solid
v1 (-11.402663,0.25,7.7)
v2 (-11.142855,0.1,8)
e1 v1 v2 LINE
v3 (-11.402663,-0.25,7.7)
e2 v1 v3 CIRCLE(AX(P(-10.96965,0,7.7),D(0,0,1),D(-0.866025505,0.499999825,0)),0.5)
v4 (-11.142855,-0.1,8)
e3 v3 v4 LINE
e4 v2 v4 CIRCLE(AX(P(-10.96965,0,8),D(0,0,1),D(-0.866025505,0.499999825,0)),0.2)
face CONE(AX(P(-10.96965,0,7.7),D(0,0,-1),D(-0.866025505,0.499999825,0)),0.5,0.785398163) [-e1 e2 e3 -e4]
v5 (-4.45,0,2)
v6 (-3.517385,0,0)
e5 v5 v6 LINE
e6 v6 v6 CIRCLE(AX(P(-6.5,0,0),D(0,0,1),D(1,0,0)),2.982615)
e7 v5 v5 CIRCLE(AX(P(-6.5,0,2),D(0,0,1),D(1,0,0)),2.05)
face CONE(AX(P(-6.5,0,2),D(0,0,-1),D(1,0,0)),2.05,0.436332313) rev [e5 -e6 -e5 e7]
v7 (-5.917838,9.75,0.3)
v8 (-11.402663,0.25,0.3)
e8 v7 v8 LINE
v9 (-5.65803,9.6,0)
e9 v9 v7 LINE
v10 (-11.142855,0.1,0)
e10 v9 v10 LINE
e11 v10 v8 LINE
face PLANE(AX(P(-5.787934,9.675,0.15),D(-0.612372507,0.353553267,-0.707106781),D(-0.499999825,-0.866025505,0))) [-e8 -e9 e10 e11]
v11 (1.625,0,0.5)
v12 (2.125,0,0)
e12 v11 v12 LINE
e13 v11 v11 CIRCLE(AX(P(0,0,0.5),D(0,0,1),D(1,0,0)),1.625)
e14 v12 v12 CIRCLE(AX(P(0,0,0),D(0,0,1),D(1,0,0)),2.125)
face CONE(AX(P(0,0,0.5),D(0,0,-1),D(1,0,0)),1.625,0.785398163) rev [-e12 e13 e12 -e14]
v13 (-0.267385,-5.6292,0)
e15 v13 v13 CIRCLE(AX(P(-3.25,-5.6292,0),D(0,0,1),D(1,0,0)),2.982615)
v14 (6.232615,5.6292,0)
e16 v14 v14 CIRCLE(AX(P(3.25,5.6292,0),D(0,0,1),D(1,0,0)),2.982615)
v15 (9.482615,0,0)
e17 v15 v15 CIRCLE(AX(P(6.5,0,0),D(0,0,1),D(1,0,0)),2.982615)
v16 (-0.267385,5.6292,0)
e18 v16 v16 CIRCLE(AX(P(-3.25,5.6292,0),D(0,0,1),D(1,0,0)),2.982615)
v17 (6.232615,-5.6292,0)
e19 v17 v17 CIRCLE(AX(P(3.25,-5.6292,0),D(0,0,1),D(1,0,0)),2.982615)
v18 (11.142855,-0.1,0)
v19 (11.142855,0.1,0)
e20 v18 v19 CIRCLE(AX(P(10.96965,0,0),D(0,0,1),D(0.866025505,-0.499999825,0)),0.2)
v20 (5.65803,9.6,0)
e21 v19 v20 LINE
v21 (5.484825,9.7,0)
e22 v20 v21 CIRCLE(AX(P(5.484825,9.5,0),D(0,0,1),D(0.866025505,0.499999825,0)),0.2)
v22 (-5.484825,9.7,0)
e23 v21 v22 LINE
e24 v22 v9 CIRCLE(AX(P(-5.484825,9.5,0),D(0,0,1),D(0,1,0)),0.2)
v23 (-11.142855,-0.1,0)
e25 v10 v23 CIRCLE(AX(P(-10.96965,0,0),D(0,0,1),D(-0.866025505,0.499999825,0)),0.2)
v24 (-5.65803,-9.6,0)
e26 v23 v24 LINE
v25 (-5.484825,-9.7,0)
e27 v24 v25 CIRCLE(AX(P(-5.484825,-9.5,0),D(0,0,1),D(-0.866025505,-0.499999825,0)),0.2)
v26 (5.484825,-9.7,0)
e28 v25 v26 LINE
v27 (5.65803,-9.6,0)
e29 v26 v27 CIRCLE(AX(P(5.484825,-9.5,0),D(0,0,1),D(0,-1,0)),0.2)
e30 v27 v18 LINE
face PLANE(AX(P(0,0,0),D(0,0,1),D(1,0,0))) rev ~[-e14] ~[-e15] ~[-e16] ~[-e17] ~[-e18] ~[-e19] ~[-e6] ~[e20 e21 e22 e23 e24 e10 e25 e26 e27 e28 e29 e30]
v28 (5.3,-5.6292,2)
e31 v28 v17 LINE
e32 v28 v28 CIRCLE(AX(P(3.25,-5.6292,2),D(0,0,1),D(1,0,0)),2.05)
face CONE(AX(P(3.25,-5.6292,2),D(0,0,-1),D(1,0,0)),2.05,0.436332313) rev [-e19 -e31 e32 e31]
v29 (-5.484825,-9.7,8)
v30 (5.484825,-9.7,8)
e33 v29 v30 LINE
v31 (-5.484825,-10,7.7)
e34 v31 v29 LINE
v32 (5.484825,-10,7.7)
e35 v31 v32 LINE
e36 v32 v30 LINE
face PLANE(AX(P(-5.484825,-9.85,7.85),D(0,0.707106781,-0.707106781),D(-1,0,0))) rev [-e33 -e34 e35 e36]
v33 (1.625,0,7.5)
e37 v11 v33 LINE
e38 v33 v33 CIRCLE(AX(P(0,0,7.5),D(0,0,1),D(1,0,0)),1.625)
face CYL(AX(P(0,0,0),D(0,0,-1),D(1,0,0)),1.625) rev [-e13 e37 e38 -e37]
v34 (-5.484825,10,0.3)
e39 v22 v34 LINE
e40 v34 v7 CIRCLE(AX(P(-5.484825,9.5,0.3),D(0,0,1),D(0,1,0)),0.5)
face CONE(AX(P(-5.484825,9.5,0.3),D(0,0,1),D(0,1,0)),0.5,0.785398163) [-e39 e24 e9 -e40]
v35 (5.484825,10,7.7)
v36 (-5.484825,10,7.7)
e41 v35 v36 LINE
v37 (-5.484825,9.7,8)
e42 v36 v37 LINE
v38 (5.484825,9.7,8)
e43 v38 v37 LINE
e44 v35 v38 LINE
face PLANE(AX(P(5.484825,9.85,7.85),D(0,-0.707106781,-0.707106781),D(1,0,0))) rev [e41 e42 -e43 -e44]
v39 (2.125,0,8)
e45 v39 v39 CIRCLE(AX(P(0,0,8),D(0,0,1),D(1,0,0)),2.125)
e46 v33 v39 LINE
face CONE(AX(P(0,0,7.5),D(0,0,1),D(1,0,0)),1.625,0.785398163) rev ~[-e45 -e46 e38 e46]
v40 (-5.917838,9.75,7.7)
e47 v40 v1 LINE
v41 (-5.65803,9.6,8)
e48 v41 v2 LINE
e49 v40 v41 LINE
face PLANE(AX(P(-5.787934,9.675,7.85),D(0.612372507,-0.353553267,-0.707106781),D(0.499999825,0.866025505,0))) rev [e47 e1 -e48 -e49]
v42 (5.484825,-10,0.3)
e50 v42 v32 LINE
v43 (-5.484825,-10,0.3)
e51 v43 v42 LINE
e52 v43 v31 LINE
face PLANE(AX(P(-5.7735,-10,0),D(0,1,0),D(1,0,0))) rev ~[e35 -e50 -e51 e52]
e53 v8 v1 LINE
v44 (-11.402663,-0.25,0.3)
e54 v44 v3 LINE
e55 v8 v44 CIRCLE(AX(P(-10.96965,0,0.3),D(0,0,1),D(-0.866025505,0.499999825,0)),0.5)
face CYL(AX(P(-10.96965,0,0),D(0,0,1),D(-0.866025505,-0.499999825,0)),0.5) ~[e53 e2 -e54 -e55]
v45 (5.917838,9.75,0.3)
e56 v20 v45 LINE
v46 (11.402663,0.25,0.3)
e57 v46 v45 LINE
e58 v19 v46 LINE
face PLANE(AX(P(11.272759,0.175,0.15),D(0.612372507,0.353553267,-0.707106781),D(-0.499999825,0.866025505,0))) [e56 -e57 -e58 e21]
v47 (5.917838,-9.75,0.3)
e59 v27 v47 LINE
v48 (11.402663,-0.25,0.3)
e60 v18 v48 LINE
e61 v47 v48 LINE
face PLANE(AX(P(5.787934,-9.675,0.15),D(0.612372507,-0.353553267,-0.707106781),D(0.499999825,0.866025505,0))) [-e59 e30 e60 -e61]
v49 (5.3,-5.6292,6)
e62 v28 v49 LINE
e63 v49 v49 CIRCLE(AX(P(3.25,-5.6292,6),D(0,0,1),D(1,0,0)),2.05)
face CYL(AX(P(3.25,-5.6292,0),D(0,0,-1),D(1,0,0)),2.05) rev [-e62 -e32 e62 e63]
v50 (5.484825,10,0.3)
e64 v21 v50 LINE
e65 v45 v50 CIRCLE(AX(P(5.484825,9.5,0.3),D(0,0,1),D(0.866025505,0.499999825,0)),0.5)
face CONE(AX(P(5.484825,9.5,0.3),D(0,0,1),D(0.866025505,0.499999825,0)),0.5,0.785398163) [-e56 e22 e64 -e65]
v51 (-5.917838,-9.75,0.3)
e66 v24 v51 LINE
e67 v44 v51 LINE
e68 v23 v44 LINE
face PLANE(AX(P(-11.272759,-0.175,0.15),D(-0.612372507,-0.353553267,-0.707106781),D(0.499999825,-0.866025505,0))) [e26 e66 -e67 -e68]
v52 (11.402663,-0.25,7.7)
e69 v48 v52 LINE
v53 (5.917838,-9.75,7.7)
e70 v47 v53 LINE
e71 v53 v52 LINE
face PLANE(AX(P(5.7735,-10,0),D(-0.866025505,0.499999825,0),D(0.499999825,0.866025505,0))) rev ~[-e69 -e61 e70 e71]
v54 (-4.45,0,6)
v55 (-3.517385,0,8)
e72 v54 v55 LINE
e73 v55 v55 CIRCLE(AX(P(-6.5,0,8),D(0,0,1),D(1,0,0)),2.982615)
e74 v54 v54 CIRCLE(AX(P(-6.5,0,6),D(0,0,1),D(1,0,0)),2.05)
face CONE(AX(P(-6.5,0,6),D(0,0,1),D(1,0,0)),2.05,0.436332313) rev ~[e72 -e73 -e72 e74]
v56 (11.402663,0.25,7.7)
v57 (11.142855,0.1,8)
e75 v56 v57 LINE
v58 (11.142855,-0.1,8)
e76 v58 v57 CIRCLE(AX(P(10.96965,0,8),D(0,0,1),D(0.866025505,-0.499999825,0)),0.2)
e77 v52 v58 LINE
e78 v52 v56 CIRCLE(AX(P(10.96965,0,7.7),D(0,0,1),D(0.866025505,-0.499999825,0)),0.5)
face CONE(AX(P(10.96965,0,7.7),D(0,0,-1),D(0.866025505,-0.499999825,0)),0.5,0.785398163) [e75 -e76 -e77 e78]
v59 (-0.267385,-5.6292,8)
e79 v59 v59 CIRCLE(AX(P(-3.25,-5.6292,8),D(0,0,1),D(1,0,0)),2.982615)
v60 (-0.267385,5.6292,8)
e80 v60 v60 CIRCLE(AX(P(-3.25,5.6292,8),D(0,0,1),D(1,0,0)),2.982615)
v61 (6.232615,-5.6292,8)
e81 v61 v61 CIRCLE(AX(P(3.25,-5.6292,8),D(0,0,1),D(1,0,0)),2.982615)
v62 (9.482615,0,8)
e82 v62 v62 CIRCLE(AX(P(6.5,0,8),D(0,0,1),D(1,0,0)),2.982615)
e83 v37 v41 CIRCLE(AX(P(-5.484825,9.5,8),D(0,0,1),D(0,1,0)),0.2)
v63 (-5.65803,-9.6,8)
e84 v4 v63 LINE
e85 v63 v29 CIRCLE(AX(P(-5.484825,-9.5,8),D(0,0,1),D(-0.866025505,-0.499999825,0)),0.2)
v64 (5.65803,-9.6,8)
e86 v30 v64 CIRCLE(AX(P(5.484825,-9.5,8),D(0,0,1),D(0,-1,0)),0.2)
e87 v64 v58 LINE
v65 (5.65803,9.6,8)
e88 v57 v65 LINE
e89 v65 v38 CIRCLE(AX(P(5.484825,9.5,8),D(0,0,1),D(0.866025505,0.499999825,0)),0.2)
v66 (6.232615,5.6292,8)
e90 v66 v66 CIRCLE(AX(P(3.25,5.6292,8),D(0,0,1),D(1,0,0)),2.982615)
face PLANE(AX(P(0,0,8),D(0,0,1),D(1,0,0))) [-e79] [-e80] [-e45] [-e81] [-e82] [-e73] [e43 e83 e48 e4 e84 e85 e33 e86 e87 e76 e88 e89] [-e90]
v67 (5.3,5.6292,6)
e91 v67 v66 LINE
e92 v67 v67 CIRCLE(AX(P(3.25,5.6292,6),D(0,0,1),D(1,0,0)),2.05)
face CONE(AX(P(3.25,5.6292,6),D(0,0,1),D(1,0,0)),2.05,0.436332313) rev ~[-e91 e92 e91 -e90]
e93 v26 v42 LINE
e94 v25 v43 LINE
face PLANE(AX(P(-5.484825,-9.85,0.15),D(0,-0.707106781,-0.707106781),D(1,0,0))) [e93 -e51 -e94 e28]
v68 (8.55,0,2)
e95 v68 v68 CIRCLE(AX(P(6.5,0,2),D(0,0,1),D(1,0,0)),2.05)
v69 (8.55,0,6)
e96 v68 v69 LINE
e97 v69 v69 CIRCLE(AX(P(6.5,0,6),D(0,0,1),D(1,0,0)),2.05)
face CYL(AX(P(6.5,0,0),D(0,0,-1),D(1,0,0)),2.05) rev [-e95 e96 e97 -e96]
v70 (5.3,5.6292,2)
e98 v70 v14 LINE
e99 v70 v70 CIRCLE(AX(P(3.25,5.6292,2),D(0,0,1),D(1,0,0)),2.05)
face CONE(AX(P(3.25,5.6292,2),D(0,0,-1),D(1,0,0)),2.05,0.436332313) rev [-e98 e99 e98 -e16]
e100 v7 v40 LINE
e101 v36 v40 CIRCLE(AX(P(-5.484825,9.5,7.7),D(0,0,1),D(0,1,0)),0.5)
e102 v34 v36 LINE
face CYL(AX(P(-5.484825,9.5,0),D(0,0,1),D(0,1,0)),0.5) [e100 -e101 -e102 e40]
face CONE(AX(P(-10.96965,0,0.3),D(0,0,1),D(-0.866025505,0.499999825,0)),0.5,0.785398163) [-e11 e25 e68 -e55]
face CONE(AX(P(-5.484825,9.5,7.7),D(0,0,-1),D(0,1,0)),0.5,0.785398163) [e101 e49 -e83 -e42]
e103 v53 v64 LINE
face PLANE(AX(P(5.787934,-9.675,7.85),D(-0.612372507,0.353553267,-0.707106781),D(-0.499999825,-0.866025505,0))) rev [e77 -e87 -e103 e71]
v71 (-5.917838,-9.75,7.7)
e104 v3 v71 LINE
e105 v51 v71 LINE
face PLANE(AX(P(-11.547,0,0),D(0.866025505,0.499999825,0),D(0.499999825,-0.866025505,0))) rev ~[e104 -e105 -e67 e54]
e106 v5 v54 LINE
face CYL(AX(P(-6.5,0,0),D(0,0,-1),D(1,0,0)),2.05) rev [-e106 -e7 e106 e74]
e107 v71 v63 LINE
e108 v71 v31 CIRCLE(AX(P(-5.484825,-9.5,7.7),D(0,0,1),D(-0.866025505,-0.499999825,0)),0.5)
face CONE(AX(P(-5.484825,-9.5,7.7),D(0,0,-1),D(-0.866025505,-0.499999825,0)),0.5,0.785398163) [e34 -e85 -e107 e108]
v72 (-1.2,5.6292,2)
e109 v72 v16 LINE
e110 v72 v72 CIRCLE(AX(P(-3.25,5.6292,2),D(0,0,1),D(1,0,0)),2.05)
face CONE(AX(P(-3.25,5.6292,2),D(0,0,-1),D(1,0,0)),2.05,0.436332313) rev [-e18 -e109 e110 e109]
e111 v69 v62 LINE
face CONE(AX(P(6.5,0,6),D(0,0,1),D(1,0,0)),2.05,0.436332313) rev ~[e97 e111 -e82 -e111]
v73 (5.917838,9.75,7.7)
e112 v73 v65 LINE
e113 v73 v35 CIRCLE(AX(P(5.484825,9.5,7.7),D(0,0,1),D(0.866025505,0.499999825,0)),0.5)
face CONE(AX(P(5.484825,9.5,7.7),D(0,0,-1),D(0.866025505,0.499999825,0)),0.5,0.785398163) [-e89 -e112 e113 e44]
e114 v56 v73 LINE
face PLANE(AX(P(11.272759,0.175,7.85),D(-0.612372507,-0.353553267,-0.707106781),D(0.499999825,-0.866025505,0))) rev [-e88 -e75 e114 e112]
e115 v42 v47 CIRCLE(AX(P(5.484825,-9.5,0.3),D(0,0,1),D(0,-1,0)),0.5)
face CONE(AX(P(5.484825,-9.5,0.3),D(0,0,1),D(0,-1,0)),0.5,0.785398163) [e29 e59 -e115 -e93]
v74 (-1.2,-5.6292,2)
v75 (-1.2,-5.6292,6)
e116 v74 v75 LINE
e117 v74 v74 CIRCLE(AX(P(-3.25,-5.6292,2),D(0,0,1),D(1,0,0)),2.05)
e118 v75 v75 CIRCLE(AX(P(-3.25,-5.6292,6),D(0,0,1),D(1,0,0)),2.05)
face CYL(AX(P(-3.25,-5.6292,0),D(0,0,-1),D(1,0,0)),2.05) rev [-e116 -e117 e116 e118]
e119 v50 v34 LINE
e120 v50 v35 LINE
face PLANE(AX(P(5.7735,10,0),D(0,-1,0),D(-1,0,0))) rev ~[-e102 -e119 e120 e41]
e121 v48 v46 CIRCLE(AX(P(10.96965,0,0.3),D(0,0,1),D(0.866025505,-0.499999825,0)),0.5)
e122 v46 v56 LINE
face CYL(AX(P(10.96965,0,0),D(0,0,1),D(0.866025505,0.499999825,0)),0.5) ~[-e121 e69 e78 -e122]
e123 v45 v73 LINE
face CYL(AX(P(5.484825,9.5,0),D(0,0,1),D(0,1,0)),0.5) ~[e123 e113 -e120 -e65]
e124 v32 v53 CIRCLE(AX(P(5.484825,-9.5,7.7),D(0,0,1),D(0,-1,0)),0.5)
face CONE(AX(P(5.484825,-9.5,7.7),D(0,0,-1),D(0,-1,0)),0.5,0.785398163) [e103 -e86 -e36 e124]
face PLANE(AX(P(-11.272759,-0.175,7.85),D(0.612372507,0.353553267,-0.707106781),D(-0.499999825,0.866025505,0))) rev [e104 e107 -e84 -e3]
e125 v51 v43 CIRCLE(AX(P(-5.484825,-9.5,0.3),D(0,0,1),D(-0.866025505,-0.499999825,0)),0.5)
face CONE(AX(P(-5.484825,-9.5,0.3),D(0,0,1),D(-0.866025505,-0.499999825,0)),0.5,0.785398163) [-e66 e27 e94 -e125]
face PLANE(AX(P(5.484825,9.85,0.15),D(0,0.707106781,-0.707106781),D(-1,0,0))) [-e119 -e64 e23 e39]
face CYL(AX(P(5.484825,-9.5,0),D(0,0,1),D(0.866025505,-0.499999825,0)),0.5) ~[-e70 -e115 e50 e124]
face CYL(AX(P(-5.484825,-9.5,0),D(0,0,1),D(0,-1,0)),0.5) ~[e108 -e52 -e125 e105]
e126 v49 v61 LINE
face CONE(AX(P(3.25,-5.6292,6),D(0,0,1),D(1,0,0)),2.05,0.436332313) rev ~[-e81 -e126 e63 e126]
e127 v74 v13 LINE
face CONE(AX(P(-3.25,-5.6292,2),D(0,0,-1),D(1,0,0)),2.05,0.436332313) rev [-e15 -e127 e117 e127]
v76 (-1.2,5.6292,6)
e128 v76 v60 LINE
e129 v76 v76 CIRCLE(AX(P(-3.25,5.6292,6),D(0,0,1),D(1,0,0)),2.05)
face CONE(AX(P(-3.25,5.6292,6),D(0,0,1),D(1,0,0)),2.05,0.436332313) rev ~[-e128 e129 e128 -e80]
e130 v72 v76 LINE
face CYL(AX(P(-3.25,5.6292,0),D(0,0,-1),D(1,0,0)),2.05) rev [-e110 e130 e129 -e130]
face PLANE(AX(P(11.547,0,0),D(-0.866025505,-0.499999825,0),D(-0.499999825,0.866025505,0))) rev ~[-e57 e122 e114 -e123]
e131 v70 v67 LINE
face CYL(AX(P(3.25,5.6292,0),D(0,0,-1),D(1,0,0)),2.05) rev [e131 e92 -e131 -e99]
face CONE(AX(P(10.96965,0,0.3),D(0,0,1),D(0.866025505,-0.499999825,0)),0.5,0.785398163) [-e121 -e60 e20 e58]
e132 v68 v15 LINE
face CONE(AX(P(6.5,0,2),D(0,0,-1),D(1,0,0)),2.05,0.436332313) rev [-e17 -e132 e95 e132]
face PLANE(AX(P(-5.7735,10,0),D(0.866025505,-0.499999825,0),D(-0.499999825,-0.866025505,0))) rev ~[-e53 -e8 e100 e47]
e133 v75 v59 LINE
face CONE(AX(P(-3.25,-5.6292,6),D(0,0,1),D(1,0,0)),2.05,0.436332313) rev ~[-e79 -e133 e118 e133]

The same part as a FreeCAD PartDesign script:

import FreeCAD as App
import Part
import Sketcher
Q = App.Units.Quantity


def edges_at(feature, points):
    """Names of the edges that pass closest to the given points."""
    edges = feature.Shape.Edges
    near = lambda p: min(range(len(edges)), key=lambda i: edges[i].distToShape(Part.Vertex(*p))[0])
    return sorted({f"Edge{near(p) + 1}" for p in points})


def add_polygon(sketch, points):
    """Adds a closed chain of lines whose ends are joined by coincident constraints."""
    first, n = sketch.GeometryCount, len(points)
    for a, b in zip(points, points[1:] + points[:1]):
        sketch.addGeometry(Part.LineSegment(App.Vector(*a, 0), App.Vector(*b, 0)), False)
    for i in range(n):
        sketch.addConstraint(Sketcher.Constraint("Coincident", first + i, 2, first + (i + 1) % n, 1))

doc = App.newDocument("Part")
body = doc.addObject("PartDesign::Body", "Body")

# Sketch on XY plane
sketch1 = doc.addObject("Sketcher::SketchObject", "Sketch")
body.addObject(sketch1)
sketch1.AttachmentSupport = (doc.XY_Plane, [""])
sketch1.MapMode = "FlatFace"
add_polygon(sketch1, [(5.8, 10), (-5.8, 10), (-11.5, 0), (-5.8, -10), (5.8, -10), (11.5, 0)])  # lines 0-5
sketch1.addGeometry(Part.Circle(App.Vector(-3.2, -5.6, 0), App.Vector(0, 0, 1), 2), False)  # 6
sketch1.addGeometry(Part.Circle(App.Vector(3.2, -5.6, 0), App.Vector(0, 0, 1), 2), False)  # 7
sketch1.addGeometry(Part.Circle(App.Vector(-6.5, 0, 0), App.Vector(0, 0, 1), 2), False)  # 8
sketch1.addGeometry(Part.Circle(App.Vector(-3.2, 5.6, 0), App.Vector(0, 0, 1), 2), False)  # 9
sketch1.addGeometry(Part.Circle(App.Vector(0, 0, 0), App.Vector(0, 0, 1), 1.6), False)  # 10
sketch1.addGeometry(Part.Circle(App.Vector(6.5, 0, 0), App.Vector(0, 0, 1), 2), False)  # 11
sketch1.addGeometry(Part.Circle(App.Vector(3.2, 5.6, 0), App.Vector(0, 0, 1), 2), False)  # 12
sketch1.addConstraint([
    Sketcher.Constraint("Horizontal", 0),
    Sketcher.Constraint("Horizontal", 3),
    Sketcher.Constraint("Coincident", 10, 3, -1, 1),
    Sketcher.Constraint("Equal", 6, 7),
    Sketcher.Constraint("Equal", 7, 8),
    Sketcher.Constraint("Equal", 8, 9),
    Sketcher.Constraint("Equal", 9, 11),
    Sketcher.Constraint("Equal", 11, 12),
    Sketcher.Constraint("Symmetric", 7, 3, 9, 3, -1, 1),
    Sketcher.Constraint("Symmetric", 8, 3, 11, 3, -1, 1),
    Sketcher.Constraint("Symmetric", 6, 3, 12, 3, -1, 1),
    Sketcher.Constraint("Symmetric", 0, 2, 3, 2, -1, 1),
    Sketcher.Constraint("Symmetric", 1, 2, 4, 2, -1, 1),
    Sketcher.Constraint("Symmetric", 6, 3, 7, 3, -2),
    Sketcher.Constraint("PointOnObject", 8, 3, -1),
    Sketcher.Constraint("PointOnObject", 1, 2, -1),
    Sketcher.Constraint("Parallel", 2, 5),
    Sketcher.Constraint("Vertical", 0, 2, 2, 2),
    Sketcher.Constraint("Diameter", 6, Q("4.1 mm")),
    Sketcher.Constraint("Diameter", 10, Q("3.25 mm")),
    Sketcher.Constraint("DistanceY", -1, 1, 0, 2, Q("10 mm")),
    Sketcher.Constraint("DistanceX", 8, 3, 11, 3, Q("13 mm")),
    Sketcher.Constraint("DistanceX", 6, 3, -1, 1, Q("3.25 mm")),
    Sketcher.Constraint("Angle", 1, Q("-120 deg")),
    Sketcher.Constraint("DistanceX", 0, 2, 0, 1, Q("11.547 mm")),
    Sketcher.Constraint("DistanceY", 6, 3, -1, 1, Q("5.6292 mm")),
])
pad1 = doc.addObject("PartDesign::Pad", "Pad")
body.addObject(pad1)
pad1.Profile = sketch1
pad1.Length = 8
doc.recompute()

chamfer = doc.addObject("PartDesign::Chamfer", "Chamfer")
body.addObject(chamfer)
chamfer.Base = (pad1, edges_at(pad1, [(-1.515, 0.588, 0)]))
chamfer.Size = 0.5
doc.recompute()

chamfer2 = doc.addObject("PartDesign::Chamfer", "Chamfer001")
body.addObject(chamfer2)
chamfer2.Base = (chamfer, edges_at(chamfer, [(-1.515, 0.588, 8)]))
chamfer2.Size = 0.5
doc.recompute()

fillet = doc.addObject("PartDesign::Fillet", "Fillet")
body.addObject(fillet)
fillet.Base = (chamfer2, edges_at(chamfer2, [
    (-5.774, -10, 4),
    (5.774, -10, 4),
    (11.547, 0, 4),
    (5.774, 10, 4),
    (-5.774, 10, 4),
    (-11.547, 0, 4),
]))
fillet.Radius = 0.5
doc.recompute()

chamfer3 = doc.addObject("PartDesign::Chamfer", "Chamfer002")
body.addObject(chamfer3)
chamfer3.Base = (fillet, edges_at(fillet, [
    (0, -10, 8),
    (5.735, -9.933, 8),
    (8.66, -5, 8),
    (11.47, 0, 8),
    (8.66, 5, 8),
    (5.735, 9.933, 8),
    (0, 10, 8),
    (-5.735, 9.933, 8),
    (-8.66, 5, 8),
    (-11.47, 0, 8),
    (-8.66, -5, 8),
    (-5.735, -9.933, 8),
    (0, -10, 0),
    (5.735, -9.933, 0),
    (8.66, -5, 0),
    (11.47, 0, 0),
    (8.66, 5, 0),
    (5.735, 9.933, 0),
    (0, 10, 0),
    (-5.735, 9.933, 0),
    (-8.66, 5, 0),
    (-11.47, 0, 0),
    (-8.66, -5, 0),
    (-5.735, -9.933, 0),
]))
chamfer3.Size = 0.3
doc.recompute()

chamfer4 = doc.addObject("PartDesign::Chamfer", "Chamfer003")
body.addObject(chamfer4)
chamfer4.Base = (chamfer3, edges_at(chamfer3, [
    (1.339, 6.37, 8),
    (-5.161, 6.37, 8),
    (-8.411, 0.741, 8),
    (-5.161, -4.888, 8),
    (1.339, -4.888, 8),
    (4.589, 0.741, 8),
]))
chamfer4.ChamferType = "Distance and Angle"
chamfer4.Size = 2
chamfer4.Angle = 25
chamfer4.FlipDirection = True
doc.recompute()

chamfer5 = doc.addObject("PartDesign::Chamfer", "Chamfer004")
body.addObject(chamfer5)
chamfer5.Base = (chamfer4, edges_at(chamfer4, [
    (-5.161, -4.888, 0),
    (1.339, -4.888, 0),
    (4.589, 0.741, 0),
    (1.339, 6.37, 0),
    (-5.161, 6.37, 0),
    (-8.411, 0.741, 0),
]))
chamfer5.ChamferType = "Distance and Angle"
chamfer5.Size = 2
chamfer5.Angle = 25

doc.recompute()
